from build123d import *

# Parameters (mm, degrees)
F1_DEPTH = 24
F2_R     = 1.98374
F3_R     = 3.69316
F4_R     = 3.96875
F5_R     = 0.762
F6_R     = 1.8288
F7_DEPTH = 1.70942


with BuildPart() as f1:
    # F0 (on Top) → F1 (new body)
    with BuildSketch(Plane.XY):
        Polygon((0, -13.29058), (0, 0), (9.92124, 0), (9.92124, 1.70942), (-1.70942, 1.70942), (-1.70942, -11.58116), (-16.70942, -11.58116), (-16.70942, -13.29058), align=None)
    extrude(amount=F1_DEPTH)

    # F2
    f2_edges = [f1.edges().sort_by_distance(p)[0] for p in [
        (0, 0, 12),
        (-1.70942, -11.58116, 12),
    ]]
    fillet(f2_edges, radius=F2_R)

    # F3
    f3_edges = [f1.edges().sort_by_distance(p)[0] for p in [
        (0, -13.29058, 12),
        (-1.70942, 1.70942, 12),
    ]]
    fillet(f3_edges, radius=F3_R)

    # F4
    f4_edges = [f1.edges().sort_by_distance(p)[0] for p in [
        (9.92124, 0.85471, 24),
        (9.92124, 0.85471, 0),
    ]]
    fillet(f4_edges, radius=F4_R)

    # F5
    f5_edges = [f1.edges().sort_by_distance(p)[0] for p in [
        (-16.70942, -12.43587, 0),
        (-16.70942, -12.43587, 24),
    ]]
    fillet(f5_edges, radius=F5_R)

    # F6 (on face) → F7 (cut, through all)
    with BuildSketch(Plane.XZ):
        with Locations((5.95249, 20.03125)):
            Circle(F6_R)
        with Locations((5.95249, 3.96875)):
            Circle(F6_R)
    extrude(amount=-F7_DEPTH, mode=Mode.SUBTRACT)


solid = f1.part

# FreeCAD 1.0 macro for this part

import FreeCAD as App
import Part
import Sketcher
Q = App.Units.Quantity


def edges_at(feature, points):
    """Names of the edges that pass closest to the given points."""
    edges = feature.Shape.Edges
    near = lambda p: min(range(len(edges)), key=lambda i: edges[i].distToShape(Part.Vertex(*p))[0])
    return sorted({f"Edge{near(p) + 1}" for p in points})

doc = App.newDocument("Part")
body = doc.addObject("PartDesign::Body", "Body")

# Sketch on XY plane
sketch1 = body.newObject("Sketcher::SketchObject", "Sketch")
sketch1.AttachmentSupport = (doc.getObject("XY_Plane"), [""])
sketch1.MapMode = "FlatFace"
sketch1.addGeometry([
    Part.LineSegment(App.Vector(0, -13.29058, 0), App.Vector(0, 0, 0)),  # 0
    Part.LineSegment(App.Vector(0, 0, 0), App.Vector(9.92124, 0, 0)),  # 1
    Part.LineSegment(App.Vector(9.92124, 0, 0), App.Vector(9.92124, 1.70942, 0)),  # 2
    Part.LineSegment(App.Vector(9.92124, 1.70942, 0), App.Vector(-1.70942, 1.70942, 0)),  # 3
    Part.LineSegment(App.Vector(-1.70942, 1.70942, 0), App.Vector(-1.70942, -11.58116, 0)),  # 4
    Part.LineSegment(App.Vector(-1.70942, -11.58116, 0), App.Vector(-16.70942, -11.58116, 0)),  # 5
    Part.LineSegment(App.Vector(-16.70942, -11.58116, 0), App.Vector(-16.70942, -13.29058, 0)),  # 6
    Part.LineSegment(App.Vector(-16.70942, -13.29058, 0), App.Vector(0, -13.29058, 0)),  # 7
], False)
sketch1.addConstraint([
    Sketcher.Constraint("Coincident", 0, 2, 1, 1),
    Sketcher.Constraint("Coincident", 1, 2, 2, 1),
    Sketcher.Constraint("Coincident", 2, 2, 3, 1),
    Sketcher.Constraint("Coincident", 3, 2, 4, 1),
    Sketcher.Constraint("Coincident", 4, 2, 5, 1),
    Sketcher.Constraint("Coincident", 5, 2, 6, 1),
    Sketcher.Constraint("Coincident", 6, 2, 7, 1),
    Sketcher.Constraint("Coincident", 7, 2, 0, 1),
    Sketcher.Constraint("Vertical", 0),
    Sketcher.Constraint("Horizontal", 1),
    Sketcher.Constraint("Vertical", 2),
    Sketcher.Constraint("Horizontal", 3),
    Sketcher.Constraint("Vertical", 4),
    Sketcher.Constraint("Horizontal", 5),
    Sketcher.Constraint("Vertical", 6),
    Sketcher.Constraint("Horizontal", 7),
    Sketcher.Constraint("Coincident", 0, 2, -1, 1),
    Sketcher.Constraint("Equal", 0, 4),
    Sketcher.Constraint("DistanceX", 1, 1, 1, 2, Q("0.3906 in")),
    Sketcher.Constraint("DistanceX", 3, 2, 3, 1, Q("0.4579 in")),
    Sketcher.Constraint("DistanceY", 2, 1, 2, 2, Q("0.0673 in")),
    Sketcher.Constraint("DistanceX", 5, 2, 5, 1, Q("15 mm")),
    Sketcher.Constraint("DistanceY", 0, 1, 0, 2, Q("13.29058 mm")),
])
pad1 = body.newObject("PartDesign::Pad", "Pad")
pad1.Profile = sketch1
pad1.Length = 24
doc.recompute()

fillet = body.newObject("PartDesign::Fillet", "Fillet")
fillet.Base = (pad1, edges_at(pad1, [(0, 0, 12), (-1.709, -11.581, 12)]))
fillet.Radius = Q("0.0781 in")
doc.recompute()

fillet2 = body.newObject("PartDesign::Fillet", "Fillet001")
fillet2.Base = (fillet, edges_at(fillet, [(0, -13.291, 12), (-1.709, 1.709, 12)]))
fillet2.Radius = Q("0.1454 in")
doc.recompute()

fillet3 = body.newObject("PartDesign::Fillet", "Fillet002")
fillet3.Base = (fillet2, edges_at(fillet2, [(9.921, 0.855, 24), (9.921, 0.855, 0)]))
fillet3.Radius = Q("0.15625 in")
doc.recompute()

fillet4 = body.newObject("PartDesign::Fillet", "Fillet003")
fillet4.Base = (fillet3, edges_at(fillet3, [(-16.709, -12.436, 0), (-16.709, -12.436, 24)]))
fillet4.Radius = Q("0.03 in")

# Sketch on XZ plane
sketch2 = body.newObject("Sketcher::SketchObject", "Sketch001")
sketch2.AttachmentSupport = (doc.getObject("XZ_Plane"), [""])
sketch2.MapMode = "FlatFace"
sketch2.addGeometry([
    Part.Circle(App.Vector(5.95249, 20.03125, 0), App.Vector(0, 0, 1), 1.8288),
    Part.Circle(App.Vector(5.95249, 3.96875, 0), App.Vector(0, 0, 1), 1.8288),
], False)
sketch2.addConstraint([
    Sketcher.Constraint("Equal", 0, 1),
    Sketcher.Constraint("Vertical", 0, 3, 1, 3),
    Sketcher.Constraint("Diameter", 0, Q("0.144 in")),
    Sketcher.Constraint("DistanceY", -1, 1, 1, 3, Q("0.15625 in")),
    Sketcher.Constraint("DistanceY", 1, 3, 0, 3, Q("16.0625 mm")),
    Sketcher.Constraint("DistanceX", -1, 1, 0, 3, Q("5.95249 mm")),
])
pocket1 = body.newObject("PartDesign::Pocket", "Pocket")
pocket1.Profile = sketch2
pocket1.Type = "ThroughAll"

doc.recompute()
